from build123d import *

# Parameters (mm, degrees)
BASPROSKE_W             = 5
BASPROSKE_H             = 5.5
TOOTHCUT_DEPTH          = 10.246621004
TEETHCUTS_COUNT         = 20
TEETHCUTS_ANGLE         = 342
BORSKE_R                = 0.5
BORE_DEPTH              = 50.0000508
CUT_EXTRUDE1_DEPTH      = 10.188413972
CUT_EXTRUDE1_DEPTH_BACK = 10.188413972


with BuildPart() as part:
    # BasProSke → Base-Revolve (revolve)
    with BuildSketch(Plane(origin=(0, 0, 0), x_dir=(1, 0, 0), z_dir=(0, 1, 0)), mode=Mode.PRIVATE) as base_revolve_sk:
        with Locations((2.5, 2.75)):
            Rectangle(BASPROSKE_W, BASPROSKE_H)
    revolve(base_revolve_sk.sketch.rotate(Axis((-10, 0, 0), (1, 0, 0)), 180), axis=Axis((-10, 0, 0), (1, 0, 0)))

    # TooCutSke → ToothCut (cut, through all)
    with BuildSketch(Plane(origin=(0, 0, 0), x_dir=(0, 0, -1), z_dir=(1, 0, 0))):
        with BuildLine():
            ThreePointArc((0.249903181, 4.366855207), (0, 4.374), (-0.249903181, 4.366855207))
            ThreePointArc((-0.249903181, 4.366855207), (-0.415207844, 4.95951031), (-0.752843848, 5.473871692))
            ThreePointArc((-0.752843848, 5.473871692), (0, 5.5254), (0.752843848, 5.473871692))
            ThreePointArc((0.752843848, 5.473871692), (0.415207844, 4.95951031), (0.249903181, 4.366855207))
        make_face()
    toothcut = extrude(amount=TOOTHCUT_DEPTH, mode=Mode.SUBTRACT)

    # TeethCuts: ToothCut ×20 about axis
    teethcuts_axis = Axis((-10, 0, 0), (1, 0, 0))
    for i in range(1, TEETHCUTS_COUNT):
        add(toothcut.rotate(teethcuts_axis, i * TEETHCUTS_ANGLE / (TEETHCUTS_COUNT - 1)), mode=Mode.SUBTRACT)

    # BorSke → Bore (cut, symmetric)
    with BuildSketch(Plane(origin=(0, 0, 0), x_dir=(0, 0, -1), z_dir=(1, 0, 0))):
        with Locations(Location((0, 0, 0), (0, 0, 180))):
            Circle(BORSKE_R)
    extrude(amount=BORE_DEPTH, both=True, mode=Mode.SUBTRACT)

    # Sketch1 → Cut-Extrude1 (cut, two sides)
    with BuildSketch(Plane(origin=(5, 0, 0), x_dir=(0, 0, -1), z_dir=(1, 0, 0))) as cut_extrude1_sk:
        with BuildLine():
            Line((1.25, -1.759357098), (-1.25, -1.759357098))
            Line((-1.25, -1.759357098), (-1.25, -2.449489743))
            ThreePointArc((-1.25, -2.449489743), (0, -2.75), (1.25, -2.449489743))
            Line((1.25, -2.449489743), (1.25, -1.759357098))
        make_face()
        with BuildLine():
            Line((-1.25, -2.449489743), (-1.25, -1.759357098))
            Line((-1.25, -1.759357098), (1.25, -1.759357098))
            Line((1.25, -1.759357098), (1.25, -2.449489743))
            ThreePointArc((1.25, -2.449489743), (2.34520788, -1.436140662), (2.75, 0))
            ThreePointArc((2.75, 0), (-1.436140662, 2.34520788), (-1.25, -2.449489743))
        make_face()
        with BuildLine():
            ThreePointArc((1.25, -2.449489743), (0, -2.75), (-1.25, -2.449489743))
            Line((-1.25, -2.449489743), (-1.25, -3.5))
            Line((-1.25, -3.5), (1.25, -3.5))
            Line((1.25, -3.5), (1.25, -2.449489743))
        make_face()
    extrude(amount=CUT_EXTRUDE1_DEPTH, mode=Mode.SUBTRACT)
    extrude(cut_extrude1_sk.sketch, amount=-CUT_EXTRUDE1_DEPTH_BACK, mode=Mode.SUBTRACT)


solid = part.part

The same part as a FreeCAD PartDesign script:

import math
import FreeCAD as App
import Part
import Sketcher
from FreeCAD import Vector

doc = App.newDocument("Part")
body = doc.addObject("PartDesign::Body", "Body")

sketch1 = doc.addObject("Sketcher::SketchObject", "Sketch")
body.addObject(sketch1)
sketch1.AttachmentSupport = (doc.XZ_Plane, [""])
sketch1.MapMode = "FlatFace"
sketch1.addGeometry([
    Part.LineSegment(Vector(0, -6, 0), Vector(0, 0, 0)),
    Part.LineSegment(Vector(0, 0, 0), Vector(5, 0, 0)),
    Part.LineSegment(Vector(5, 0, 0), Vector(5, -6, 0)),
    Part.LineSegment(Vector(5, -6, 0), Vector(0, -6, 0)),
], False)
sketch1.addConstraint([
    Sketcher.Constraint("Coincident", 0, 2, 1, 1),
    Sketcher.Constraint("Coincident", 1, 2, 2, 1),
    Sketcher.Constraint("Coincident", 2, 2, 3, 1),
    Sketcher.Constraint("Coincident", 3, 2, 0, 1),
    Sketcher.Constraint("Vertical", 0),
    Sketcher.Constraint("Horizontal", 1),
    Sketcher.Constraint("Vertical", 2),
    Sketcher.Constraint("Horizontal", 3),
    Sketcher.Constraint("Coincident", 0, 2, -1, 1),
    Sketcher.Constraint("DistanceX", 1, 1, 1, 2, 5.0),
    Sketcher.Constraint("DistanceY", 0, 1, 0, 2, 5.5),
])
revolution = doc.addObject("PartDesign::Revolution", "Revolution")
body.addObject(revolution)
revolution.Profile = sketch1
revolution.ReferenceAxis = (sketch1, ["H_Axis"])
revolution.Angle = 360

sketch2 = doc.addObject("Sketcher::SketchObject", "Sketch001")
body.addObject(sketch2)
sketch2.AttachmentSupport = (doc.YZ_Plane, [""])
sketch2.MapMode = "FlatFace"
sketch2.addGeometry([
    Part.ArcOfCircle(Part.Circle(Vector(0, 0, 0), Vector(0, 0, 1), 4.37), math.radians(-3.28), math.radians(3.28)),
    Part.ArcOfCircle(Part.Circle(Vector(4.13, -2.24, 0), Vector(0, 0, 1), 2), math.radians(48), math.radians(83)),
    Part.ArcOfCircle(Part.Circle(Vector(0, 0, 0), Vector(0, 0, 1), 5.53), math.radians(-7.83), math.radians(7.83)),
    Part.ArcOfCircle(Part.Circle(Vector(4.13, 2.24, 0), Vector(0, 0, 1), 2), math.radians(-83), math.radians(-48)),
], False)
sketch2.addConstraint([
    Sketcher.Constraint("Coincident", 0, 1, 1, 2),
    Sketcher.Constraint("Coincident", 1, 1, 2, 1),
    Sketcher.Constraint("Coincident", 2, 2, 3, 2),
    Sketcher.Constraint("Coincident", 3, 1, 0, 2),
    Sketcher.Constraint("Coincident", 0, 3, -1, 1),
    Sketcher.Constraint("Coincident", 2, 3, -1, 1),
    Sketcher.Constraint("Equal", 1, 3),
    Sketcher.Constraint("Symmetric", 1, 3, 3, 3, -1),
    Sketcher.Constraint("Radius", 1, 2.0),
    Sketcher.Constraint("Radius", 0, 4.374),
    Sketcher.Constraint("Radius", 2, 5.5254),
    Sketcher.Constraint("DistanceY", 0, 1, 3, 3, 2.485998),
    Sketcher.Constraint("DistanceX", -1, 1, 1, 1, 5.473872),
])
pocket1 = doc.addObject("PartDesign::Pocket", "Pocket")
body.addObject(pocket1)
pocket1.Profile = sketch2
pocket1.Type = "ThroughAll"
pocket1.Reversed = True
doc.recompute()

polarpattern = doc.addObject("PartDesign::PolarPattern", "PolarPattern")
body.addObject(polarpattern)
polarpattern.Originals = [pocket1]
polarpattern.Axis = (doc.X_Axis, [""])
polarpattern.Angle = 360
polarpattern.Occurrences = 20
body.Tip = polarpattern

sketch3 = doc.addObject("Sketcher::SketchObject", "Sketch002")
body.addObject(sketch3)
sketch3.AttachmentSupport = (doc.YZ_Plane, [""])
sketch3.MapMode = "FlatFace"
sketch3.addGeometry(Part.Circle(Vector(0, 0, 0), Vector(0, 0, 1), 0.5), False)
sketch3.addConstraint([
    Sketcher.Constraint("Coincident", 0, 3, -1, 1),
    Sketcher.Constraint("Diameter", 0, 1.0),
])
pocket2 = doc.addObject("PartDesign::Pocket", "Pocket001")
body.addObject(pocket2)
pocket2.Profile = sketch3
pocket2.Length = 100.000102
pocket2.Midplane = True

sketch4 = doc.addObject("Sketcher::SketchObject", "Sketch003")
body.addObject(sketch4)
sketch4.AttachmentSupport = (doc.YZ_Plane, [""])
sketch4.MapMode = "FlatFace"
sketch4.AttachmentOffset = App.Placement(Vector(0, 0, 5), App.Rotation())
sketch4.addGeometry([
    Part.ArcOfCircle(Part.Circle(Vector(0, 0, 0), Vector(0, 0, 1), 2.7), math.radians(-153), math.radians(-90)),
    Part.ArcOfCircle(Part.Circle(Vector(0, 0, 0), Vector(0, 0, 1), 2.8), math.radians(-90), math.radians(153)),
    Part.LineSegment(Vector(-2.4, 1.2, 0), Vector(-3.5, 1.2, 0)),
    Part.LineSegment(Vector(-3.5, 1.2, 0), Vector(-3.5, -1.2, 0)),
    Part.LineSegment(Vector(-3.5, -1.2, 0), Vector(-2.4, -1.2, 0)),
], False)
sketch4.addConstraint([
    Sketcher.Constraint("Tangent", 0, 2, 1, 1),
    Sketcher.Constraint("Coincident", 1, 2, 2, 1),
    Sketcher.Constraint("Coincident", 2, 2, 3, 1),
    Sketcher.Constraint("Coincident", 3, 2, 4, 1),
    Sketcher.Constraint("Coincident", 4, 2, 0, 1),
    Sketcher.Constraint("Horizontal", 2),
    Sketcher.Constraint("Vertical", 3),
    Sketcher.Constraint("Horizontal", 4),
    Sketcher.Constraint("Coincident", 0, 3, -1, 1),
    Sketcher.Constraint("Equal", 0, 1),
    Sketcher.Constraint("PointOnObject", 0, 2, -2),
    Sketcher.Constraint("Vertical", 1, 2, 4, 2),
    Sketcher.Constraint("Radius", 0, 2.75),
    Sketcher.Constraint("DistanceY", 3, 2, 3, 1, 2.5),
    Sketcher.Constraint("DistanceX", 2, 2, -1, 1, 3.5),
])
pocket3 = doc.addObject("PartDesign::Pocket", "Pocket002")
body.addObject(pocket3)
pocket3.Profile = sketch4
pocket3.Type = "ThroughAll"
pocket3.Midplane = True

doc.recompute()
